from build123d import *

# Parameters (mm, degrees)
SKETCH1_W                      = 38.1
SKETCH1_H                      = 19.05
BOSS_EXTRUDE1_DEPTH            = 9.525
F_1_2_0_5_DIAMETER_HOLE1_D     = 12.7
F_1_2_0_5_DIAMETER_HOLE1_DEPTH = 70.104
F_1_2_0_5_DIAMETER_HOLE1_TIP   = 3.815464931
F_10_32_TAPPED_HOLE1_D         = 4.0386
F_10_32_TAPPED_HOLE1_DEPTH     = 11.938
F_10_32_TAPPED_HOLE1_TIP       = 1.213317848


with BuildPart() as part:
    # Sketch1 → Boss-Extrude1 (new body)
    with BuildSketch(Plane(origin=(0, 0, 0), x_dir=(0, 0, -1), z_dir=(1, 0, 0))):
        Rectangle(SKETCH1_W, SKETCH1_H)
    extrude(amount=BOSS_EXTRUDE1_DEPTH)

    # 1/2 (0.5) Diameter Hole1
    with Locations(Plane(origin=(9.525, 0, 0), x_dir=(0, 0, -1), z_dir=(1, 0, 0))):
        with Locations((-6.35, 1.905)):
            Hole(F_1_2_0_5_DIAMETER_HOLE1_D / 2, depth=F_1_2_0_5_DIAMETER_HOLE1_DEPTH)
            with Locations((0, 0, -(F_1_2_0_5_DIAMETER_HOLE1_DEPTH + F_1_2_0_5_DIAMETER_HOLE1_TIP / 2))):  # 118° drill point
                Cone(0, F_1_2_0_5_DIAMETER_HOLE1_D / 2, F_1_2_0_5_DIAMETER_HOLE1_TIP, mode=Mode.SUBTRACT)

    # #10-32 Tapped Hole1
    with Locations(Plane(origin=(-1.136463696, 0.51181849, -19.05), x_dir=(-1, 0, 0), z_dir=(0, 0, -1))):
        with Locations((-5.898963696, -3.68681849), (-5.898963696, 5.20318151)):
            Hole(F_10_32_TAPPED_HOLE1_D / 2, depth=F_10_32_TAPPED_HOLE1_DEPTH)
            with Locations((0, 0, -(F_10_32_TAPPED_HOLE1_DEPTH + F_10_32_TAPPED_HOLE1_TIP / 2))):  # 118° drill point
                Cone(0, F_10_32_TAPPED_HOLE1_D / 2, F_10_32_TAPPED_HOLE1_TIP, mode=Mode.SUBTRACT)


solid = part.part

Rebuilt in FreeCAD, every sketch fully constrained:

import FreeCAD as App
import Part
import Sketcher
Q = App.Units.Quantity

doc = App.newDocument("Part")
body = doc.addObject("PartDesign::Body", "Body")

# Sketch on YZ plane
sketch1 = body.newObject("Sketcher::SketchObject", "Sketch")
sketch1.AttachmentSupport = (doc.getObject("YZ_Plane"), [""])
sketch1.MapMode = "FlatFace"
sketch1.addGeometry([
    Part.LineSegment(App.Vector(10, 19, 0), App.Vector(-10, 19, 0)),
    Part.LineSegment(App.Vector(-10, 19, 0), App.Vector(-10, -19, 0)),
    Part.LineSegment(App.Vector(-10, -19, 0), App.Vector(10, -19, 0)),
    Part.LineSegment(App.Vector(10, -19, 0), App.Vector(10, 19, 0)),
], False)
sketch1.addConstraint([
    Sketcher.Constraint("Coincident", 0, 2, 1, 1),
    Sketcher.Constraint("Coincident", 1, 2, 2, 1),
    Sketcher.Constraint("Coincident", 2, 2, 3, 1),
    Sketcher.Constraint("Coincident", 3, 2, 0, 1),
    Sketcher.Constraint("Horizontal", 0),
    Sketcher.Constraint("Vertical", 1),
    Sketcher.Constraint("Horizontal", 2),
    Sketcher.Constraint("Vertical", 3),
    Sketcher.Constraint("Symmetric", 0, 2, 2, 2, -1, 1),
    Sketcher.Constraint("DistanceY", 1, 2, 1, 1, Q("1.5 in")),
    Sketcher.Constraint("DistanceX", 0, 2, 0, 1, Q("0.75 in")),
])
pad1 = body.newObject("PartDesign::Pad", "Pad")
pad1.Profile = sketch1
pad1.Length = Q("0.375 in")

# Sketch on YZ plane
sketch2 = body.newObject("Sketcher::SketchObject", "Sketch001")
sketch2.AttachmentSupport = (doc.getObject("YZ_Plane"), [""])
sketch2.MapMode = "FlatFace"
sketch2.AttachmentOffset = App.Placement(App.Vector(0, 0, 0.375 * 25.4), App.Rotation())
sketch2.addGeometry(Part.Circle(App.Vector(2, 6, 0), App.Vector(0, 0, 1), 6), False)
sketch2.addConstraint([
    Sketcher.Constraint("Diameter", 0, Q("0.5 in")),
    Sketcher.Constraint("DistanceY", -1, 1, 0, 3, Q("0.25 in")),
    Sketcher.Constraint("DistanceX", -1, 1, 0, 3, Q("0.075 in")),
])
doc.recompute()
hole = body.newObject("PartDesign::Hole", "Hole")
hole.Profile = sketch2
hole.ThreadType = "None"
hole.Diameter = Q("0.5 in")
hole.DepthType = "Dimension"
hole.Depth = Q("2.76 in")
hole.DrillPoint = "Angled"
hole.DrillPointAngle = 118

# Sketch on XY plane
sketch3 = body.newObject("Sketcher::SketchObject", "Sketch002")
sketch3.AttachmentSupport = (doc.getObject("XY_Plane"), [""])
sketch3.MapMode = "FlatFace"
sketch3.AttachmentOffset = App.Placement(App.Vector(0, 0, -0.75 * 25.4), App.Rotation())
sketch3.addGeometry([
    Part.Circle(App.Vector(4.8, -3.2, 0), App.Vector(0, 0, 1), 2),
    Part.Circle(App.Vector(4.8, 5.7, 0), App.Vector(0, 0, 1), 2),
], False)
sketch3.addConstraint([
    Sketcher.Constraint("Equal", 0, 1),
    Sketcher.Constraint("Vertical", 0, 3, 1, 3),
    Sketcher.Constraint("Diameter", 0, Q("0.159 in")),
    Sketcher.Constraint("DistanceY", 0, 3, 1, 3, Q("0.35 in")),
    Sketcher.Constraint("DistanceX", -1, 1, 0, 3, Q("0.1875 in")),
    Sketcher.Constraint("DistanceY", 0, 3, -1, 1, Q("0.125 in")),
])
doc.recompute()
hole2 = body.newObject("PartDesign::Hole", "Hole001")
hole2.Profile = sketch3
hole2.ThreadType = "None"
hole2.Diameter = Q("0.159 in")
hole2.DepthType = "Dimension"
hole2.Depth = Q("0.47 in")
hole2.DrillPoint = "Angled"
hole2.DrillPointAngle = 118
hole2.Reversed = True

doc.recompute()
